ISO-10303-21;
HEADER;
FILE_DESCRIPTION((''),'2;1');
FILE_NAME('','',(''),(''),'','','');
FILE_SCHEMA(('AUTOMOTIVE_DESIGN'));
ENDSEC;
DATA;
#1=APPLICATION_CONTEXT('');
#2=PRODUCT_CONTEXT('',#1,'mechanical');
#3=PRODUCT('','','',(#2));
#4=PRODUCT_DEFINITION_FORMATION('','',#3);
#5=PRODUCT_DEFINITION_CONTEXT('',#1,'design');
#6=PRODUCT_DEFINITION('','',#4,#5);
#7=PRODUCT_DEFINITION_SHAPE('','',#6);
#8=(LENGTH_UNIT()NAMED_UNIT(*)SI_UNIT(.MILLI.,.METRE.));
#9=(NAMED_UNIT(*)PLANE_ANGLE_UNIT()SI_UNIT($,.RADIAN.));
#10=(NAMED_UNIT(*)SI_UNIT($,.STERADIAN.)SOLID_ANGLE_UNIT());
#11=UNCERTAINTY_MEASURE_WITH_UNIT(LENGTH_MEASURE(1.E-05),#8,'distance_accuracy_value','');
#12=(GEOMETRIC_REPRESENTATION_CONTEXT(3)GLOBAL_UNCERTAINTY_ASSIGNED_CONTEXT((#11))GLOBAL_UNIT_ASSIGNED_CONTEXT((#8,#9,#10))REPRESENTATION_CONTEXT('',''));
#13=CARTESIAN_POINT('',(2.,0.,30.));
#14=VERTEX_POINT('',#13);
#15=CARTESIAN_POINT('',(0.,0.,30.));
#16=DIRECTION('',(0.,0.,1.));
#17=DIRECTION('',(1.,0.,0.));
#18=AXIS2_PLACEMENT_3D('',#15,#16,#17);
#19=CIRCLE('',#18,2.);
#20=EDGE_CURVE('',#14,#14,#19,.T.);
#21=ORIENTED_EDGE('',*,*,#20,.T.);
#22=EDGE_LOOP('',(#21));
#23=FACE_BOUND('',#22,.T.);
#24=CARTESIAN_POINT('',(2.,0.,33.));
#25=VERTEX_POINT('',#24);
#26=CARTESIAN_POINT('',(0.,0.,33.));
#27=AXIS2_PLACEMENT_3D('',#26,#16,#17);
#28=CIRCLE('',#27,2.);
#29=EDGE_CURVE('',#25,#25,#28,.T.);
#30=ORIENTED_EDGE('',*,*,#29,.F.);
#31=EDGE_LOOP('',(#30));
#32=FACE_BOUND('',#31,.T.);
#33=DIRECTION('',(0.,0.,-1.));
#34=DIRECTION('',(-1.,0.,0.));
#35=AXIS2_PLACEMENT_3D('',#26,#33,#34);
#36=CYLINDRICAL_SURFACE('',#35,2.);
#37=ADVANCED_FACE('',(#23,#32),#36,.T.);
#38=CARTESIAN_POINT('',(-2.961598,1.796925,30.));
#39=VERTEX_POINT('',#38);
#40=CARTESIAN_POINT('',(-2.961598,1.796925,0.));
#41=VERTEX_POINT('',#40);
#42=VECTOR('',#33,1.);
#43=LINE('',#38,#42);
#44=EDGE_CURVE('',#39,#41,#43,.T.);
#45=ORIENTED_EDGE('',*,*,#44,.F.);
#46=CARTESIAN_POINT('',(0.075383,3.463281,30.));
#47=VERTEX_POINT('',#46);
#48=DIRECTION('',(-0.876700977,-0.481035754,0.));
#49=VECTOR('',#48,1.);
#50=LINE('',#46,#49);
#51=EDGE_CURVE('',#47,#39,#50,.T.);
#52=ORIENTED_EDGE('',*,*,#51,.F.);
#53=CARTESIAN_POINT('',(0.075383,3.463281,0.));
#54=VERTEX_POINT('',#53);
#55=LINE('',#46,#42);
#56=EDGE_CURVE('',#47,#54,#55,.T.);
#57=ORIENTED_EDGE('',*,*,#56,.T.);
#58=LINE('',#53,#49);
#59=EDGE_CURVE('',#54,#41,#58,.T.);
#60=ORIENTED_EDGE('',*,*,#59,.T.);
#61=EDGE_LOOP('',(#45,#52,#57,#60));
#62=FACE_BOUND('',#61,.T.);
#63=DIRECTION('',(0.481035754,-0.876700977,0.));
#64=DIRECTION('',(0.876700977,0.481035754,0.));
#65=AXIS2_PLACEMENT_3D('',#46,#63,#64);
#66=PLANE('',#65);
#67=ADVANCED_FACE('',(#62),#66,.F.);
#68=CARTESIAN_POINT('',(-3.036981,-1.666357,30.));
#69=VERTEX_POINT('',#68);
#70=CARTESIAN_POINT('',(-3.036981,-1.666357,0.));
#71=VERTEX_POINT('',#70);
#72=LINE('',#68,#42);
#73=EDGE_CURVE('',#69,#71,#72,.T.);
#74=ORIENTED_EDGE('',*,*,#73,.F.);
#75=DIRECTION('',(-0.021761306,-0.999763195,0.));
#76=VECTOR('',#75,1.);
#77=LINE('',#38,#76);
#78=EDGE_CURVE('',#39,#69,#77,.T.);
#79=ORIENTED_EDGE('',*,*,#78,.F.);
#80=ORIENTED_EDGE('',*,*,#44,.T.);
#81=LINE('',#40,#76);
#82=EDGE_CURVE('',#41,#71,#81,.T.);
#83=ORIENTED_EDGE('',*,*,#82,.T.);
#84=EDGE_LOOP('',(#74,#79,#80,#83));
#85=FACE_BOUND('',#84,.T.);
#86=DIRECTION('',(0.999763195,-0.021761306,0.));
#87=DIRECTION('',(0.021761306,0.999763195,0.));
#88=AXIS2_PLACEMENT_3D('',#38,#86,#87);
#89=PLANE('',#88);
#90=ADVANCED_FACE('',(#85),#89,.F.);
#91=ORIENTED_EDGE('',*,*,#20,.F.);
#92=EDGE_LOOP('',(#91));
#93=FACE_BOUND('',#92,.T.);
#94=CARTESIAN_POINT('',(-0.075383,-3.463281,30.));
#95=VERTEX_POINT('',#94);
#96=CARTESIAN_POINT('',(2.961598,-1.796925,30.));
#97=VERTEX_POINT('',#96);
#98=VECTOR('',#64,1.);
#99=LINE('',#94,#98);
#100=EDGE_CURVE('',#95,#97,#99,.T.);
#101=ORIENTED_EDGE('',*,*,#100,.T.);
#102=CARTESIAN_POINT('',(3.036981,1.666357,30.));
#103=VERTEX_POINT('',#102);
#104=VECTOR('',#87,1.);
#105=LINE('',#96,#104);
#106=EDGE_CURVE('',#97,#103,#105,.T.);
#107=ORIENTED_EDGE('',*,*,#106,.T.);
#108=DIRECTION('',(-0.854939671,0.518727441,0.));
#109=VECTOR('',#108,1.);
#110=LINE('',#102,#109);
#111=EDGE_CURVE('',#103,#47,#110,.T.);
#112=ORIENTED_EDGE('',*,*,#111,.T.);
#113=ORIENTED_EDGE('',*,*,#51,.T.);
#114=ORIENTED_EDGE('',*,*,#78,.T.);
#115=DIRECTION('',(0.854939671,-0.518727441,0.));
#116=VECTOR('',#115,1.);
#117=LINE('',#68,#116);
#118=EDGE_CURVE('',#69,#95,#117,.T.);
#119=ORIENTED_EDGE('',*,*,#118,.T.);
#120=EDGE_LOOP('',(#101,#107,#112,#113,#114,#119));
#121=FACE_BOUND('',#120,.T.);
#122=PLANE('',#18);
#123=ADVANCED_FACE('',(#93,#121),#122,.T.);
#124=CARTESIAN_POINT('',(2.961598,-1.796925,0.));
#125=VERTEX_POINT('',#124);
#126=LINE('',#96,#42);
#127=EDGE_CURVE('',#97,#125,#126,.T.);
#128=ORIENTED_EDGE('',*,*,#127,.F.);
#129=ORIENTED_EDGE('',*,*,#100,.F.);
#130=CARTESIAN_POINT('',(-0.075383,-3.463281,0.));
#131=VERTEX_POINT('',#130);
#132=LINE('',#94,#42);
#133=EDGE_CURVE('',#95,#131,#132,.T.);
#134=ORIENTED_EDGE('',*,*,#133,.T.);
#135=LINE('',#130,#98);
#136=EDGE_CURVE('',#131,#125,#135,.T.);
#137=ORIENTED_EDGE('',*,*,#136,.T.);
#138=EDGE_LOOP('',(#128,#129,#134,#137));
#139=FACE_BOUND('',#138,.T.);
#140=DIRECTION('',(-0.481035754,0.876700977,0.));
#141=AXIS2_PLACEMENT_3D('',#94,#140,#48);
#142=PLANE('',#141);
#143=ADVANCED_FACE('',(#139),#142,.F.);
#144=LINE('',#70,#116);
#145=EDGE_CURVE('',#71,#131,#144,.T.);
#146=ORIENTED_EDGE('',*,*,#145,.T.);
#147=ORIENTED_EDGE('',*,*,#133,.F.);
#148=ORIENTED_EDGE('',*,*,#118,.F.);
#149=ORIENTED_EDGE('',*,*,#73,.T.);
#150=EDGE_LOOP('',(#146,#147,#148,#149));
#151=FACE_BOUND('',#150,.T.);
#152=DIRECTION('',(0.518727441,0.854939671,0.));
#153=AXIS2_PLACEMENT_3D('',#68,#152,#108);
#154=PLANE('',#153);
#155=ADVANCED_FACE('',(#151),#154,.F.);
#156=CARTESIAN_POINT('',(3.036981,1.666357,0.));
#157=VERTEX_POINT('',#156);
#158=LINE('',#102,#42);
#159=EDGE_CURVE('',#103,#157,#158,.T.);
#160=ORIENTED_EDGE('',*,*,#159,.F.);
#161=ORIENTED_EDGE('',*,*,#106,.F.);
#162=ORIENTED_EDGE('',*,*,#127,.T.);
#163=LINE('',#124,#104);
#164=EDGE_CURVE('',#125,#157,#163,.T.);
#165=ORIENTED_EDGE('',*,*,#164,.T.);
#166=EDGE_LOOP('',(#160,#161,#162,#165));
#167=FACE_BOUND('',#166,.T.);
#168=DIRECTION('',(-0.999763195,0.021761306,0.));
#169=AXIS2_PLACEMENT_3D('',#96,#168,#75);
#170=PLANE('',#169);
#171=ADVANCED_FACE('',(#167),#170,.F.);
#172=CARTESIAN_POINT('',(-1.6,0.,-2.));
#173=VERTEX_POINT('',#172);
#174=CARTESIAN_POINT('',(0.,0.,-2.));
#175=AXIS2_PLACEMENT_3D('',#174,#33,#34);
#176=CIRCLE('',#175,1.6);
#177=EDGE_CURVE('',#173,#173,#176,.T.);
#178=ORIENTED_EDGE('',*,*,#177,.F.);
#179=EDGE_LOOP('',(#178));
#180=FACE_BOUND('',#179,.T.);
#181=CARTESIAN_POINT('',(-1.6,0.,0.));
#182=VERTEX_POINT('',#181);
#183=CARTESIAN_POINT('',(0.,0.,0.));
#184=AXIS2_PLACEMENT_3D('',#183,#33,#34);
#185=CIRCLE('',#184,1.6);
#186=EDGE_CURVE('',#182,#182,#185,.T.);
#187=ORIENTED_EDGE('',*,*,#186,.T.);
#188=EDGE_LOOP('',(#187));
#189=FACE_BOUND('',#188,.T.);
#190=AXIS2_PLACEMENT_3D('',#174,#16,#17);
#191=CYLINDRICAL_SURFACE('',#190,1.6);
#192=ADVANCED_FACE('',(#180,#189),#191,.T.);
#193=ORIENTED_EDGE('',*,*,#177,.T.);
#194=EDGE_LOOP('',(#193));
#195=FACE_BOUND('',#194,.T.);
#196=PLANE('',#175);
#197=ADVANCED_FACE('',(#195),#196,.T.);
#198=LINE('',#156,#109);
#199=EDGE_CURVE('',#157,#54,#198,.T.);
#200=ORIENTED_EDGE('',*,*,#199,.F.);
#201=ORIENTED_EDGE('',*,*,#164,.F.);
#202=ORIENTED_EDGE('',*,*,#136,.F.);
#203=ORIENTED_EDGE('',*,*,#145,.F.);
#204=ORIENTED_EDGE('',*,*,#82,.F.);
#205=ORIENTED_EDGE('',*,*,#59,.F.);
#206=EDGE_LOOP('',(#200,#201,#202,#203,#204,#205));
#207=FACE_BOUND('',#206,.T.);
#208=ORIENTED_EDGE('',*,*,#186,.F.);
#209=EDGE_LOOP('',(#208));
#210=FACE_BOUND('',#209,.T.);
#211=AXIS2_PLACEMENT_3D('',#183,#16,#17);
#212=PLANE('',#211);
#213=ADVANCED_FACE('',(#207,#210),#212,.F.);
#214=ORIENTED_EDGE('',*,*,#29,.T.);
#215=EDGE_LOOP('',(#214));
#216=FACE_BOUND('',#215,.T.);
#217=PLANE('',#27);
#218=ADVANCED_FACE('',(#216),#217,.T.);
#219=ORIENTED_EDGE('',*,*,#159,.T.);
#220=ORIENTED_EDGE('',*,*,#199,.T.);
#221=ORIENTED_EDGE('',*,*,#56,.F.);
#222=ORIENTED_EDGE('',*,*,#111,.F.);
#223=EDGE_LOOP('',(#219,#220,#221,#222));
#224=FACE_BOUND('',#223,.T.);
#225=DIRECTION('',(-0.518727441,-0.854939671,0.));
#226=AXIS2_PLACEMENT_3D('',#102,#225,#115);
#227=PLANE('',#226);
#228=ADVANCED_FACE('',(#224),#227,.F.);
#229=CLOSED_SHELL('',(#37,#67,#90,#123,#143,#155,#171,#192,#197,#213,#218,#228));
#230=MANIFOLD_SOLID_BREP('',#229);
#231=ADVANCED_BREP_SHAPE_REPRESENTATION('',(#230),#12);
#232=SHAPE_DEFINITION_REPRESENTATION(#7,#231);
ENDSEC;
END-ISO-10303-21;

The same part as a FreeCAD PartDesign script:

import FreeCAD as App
import Part
import Sketcher
from FreeCAD import Vector


def add_polygon(sketch, points):
    """Adds a closed chain of lines whose ends are joined by coincident constraints."""
    first, n = sketch.GeometryCount, len(points)
    for a, b in zip(points, points[1:] + points[:1]):
        sketch.addGeometry(Part.LineSegment(App.Vector(*a, 0), App.Vector(*b, 0)), False)
    for i in range(n):
        sketch.addConstraint(Sketcher.Constraint("Coincident", first + i, 2, first + (i + 1) % n, 1))

doc = App.newDocument("Part")
body = doc.addObject("PartDesign::Body", "Body")

sketch1 = body.newObject("Sketcher::SketchObject", "Sketch")
sketch1.AttachmentSupport = (doc.getObject("XY_Plane"), [""])
sketch1.MapMode = "FlatFace"
add_polygon(sketch1, [(3, -1.8), (3, 1.7), (0.1, 3.5), (-3, 1.8), (-3, -1.7), (-0.1, -3.5)])
sketch1.addConstraint(Sketcher.Constraint("Symmetric", 0, 2, 3, 2, -1, 1))
sketch1.addConstraint(Sketcher.Constraint("Symmetric", 1, 2, 4, 2, -1, 1))
sketch1.addConstraint(Sketcher.Constraint("Symmetric", 2, 2, 5, 2, -1, 1))
sketch1.addConstraint(Sketcher.Constraint("Equal", 0, 1))
sketch1.addConstraint(Sketcher.Constraint("Equal", 1, 2))
sketch1.addConstraint(Sketcher.Constraint("Distance", 0, 3.464102))
sketch1.addConstraint(Sketcher.Constraint("DistanceX", -1, 1, 0, 2, 3.036981))
sketch1.addConstraint(Sketcher.Constraint("DistanceY", -1, 1, 1, 2, 3.463281))
sketch1.addConstraint(Sketcher.Constraint("DistanceX", 2, 2, 1, 2, 3.036981))
pad1 = body.newObject("PartDesign::Pad", "Pad")
pad1.Profile = sketch1
pad1.Length = 30

sketch2 = body.newObject("Sketcher::SketchObject", "Sketch001")
sketch2.AttachmentSupport = (doc.getObject("XY_Plane"), [""])
sketch2.MapMode = "FlatFace"
sketch2.AttachmentOffset = App.Placement(Vector(0, 0, 30), App.Rotation())
sketch2.addGeometry(Part.Circle(Vector(0, 0, 0), Vector(0, 0, 1), 2), False)
sketch2.addConstraint(Sketcher.Constraint("Coincident", 0, 3, -1, 1))
sketch2.addConstraint(Sketcher.Constraint("Diameter", 0, 4.0))
pad2 = body.newObject("PartDesign::Pad", "Pad001")
pad2.Profile = sketch2
pad2.Length = 3

sketch3 = body.newObject("Sketcher::SketchObject", "Sketch002")
sketch3.AttachmentSupport = (doc.getObject("XY_Plane"), [""])
sketch3.MapMode = "FlatFace"
sketch3.addGeometry(Part.Circle(Vector(0, 0, 0), Vector(0, 0, 1), 1.6), False)
sketch3.addConstraint(Sketcher.Constraint("Coincident", 0, 3, -1, 1))
sketch3.addConstraint(Sketcher.Constraint("Diameter", 0, 3.2))
pad3 = body.newObject("PartDesign::Pad", "Pad002")
pad3.Profile = sketch3
pad3.Length = 2
pad3.Reversed = True

doc.recompute()
